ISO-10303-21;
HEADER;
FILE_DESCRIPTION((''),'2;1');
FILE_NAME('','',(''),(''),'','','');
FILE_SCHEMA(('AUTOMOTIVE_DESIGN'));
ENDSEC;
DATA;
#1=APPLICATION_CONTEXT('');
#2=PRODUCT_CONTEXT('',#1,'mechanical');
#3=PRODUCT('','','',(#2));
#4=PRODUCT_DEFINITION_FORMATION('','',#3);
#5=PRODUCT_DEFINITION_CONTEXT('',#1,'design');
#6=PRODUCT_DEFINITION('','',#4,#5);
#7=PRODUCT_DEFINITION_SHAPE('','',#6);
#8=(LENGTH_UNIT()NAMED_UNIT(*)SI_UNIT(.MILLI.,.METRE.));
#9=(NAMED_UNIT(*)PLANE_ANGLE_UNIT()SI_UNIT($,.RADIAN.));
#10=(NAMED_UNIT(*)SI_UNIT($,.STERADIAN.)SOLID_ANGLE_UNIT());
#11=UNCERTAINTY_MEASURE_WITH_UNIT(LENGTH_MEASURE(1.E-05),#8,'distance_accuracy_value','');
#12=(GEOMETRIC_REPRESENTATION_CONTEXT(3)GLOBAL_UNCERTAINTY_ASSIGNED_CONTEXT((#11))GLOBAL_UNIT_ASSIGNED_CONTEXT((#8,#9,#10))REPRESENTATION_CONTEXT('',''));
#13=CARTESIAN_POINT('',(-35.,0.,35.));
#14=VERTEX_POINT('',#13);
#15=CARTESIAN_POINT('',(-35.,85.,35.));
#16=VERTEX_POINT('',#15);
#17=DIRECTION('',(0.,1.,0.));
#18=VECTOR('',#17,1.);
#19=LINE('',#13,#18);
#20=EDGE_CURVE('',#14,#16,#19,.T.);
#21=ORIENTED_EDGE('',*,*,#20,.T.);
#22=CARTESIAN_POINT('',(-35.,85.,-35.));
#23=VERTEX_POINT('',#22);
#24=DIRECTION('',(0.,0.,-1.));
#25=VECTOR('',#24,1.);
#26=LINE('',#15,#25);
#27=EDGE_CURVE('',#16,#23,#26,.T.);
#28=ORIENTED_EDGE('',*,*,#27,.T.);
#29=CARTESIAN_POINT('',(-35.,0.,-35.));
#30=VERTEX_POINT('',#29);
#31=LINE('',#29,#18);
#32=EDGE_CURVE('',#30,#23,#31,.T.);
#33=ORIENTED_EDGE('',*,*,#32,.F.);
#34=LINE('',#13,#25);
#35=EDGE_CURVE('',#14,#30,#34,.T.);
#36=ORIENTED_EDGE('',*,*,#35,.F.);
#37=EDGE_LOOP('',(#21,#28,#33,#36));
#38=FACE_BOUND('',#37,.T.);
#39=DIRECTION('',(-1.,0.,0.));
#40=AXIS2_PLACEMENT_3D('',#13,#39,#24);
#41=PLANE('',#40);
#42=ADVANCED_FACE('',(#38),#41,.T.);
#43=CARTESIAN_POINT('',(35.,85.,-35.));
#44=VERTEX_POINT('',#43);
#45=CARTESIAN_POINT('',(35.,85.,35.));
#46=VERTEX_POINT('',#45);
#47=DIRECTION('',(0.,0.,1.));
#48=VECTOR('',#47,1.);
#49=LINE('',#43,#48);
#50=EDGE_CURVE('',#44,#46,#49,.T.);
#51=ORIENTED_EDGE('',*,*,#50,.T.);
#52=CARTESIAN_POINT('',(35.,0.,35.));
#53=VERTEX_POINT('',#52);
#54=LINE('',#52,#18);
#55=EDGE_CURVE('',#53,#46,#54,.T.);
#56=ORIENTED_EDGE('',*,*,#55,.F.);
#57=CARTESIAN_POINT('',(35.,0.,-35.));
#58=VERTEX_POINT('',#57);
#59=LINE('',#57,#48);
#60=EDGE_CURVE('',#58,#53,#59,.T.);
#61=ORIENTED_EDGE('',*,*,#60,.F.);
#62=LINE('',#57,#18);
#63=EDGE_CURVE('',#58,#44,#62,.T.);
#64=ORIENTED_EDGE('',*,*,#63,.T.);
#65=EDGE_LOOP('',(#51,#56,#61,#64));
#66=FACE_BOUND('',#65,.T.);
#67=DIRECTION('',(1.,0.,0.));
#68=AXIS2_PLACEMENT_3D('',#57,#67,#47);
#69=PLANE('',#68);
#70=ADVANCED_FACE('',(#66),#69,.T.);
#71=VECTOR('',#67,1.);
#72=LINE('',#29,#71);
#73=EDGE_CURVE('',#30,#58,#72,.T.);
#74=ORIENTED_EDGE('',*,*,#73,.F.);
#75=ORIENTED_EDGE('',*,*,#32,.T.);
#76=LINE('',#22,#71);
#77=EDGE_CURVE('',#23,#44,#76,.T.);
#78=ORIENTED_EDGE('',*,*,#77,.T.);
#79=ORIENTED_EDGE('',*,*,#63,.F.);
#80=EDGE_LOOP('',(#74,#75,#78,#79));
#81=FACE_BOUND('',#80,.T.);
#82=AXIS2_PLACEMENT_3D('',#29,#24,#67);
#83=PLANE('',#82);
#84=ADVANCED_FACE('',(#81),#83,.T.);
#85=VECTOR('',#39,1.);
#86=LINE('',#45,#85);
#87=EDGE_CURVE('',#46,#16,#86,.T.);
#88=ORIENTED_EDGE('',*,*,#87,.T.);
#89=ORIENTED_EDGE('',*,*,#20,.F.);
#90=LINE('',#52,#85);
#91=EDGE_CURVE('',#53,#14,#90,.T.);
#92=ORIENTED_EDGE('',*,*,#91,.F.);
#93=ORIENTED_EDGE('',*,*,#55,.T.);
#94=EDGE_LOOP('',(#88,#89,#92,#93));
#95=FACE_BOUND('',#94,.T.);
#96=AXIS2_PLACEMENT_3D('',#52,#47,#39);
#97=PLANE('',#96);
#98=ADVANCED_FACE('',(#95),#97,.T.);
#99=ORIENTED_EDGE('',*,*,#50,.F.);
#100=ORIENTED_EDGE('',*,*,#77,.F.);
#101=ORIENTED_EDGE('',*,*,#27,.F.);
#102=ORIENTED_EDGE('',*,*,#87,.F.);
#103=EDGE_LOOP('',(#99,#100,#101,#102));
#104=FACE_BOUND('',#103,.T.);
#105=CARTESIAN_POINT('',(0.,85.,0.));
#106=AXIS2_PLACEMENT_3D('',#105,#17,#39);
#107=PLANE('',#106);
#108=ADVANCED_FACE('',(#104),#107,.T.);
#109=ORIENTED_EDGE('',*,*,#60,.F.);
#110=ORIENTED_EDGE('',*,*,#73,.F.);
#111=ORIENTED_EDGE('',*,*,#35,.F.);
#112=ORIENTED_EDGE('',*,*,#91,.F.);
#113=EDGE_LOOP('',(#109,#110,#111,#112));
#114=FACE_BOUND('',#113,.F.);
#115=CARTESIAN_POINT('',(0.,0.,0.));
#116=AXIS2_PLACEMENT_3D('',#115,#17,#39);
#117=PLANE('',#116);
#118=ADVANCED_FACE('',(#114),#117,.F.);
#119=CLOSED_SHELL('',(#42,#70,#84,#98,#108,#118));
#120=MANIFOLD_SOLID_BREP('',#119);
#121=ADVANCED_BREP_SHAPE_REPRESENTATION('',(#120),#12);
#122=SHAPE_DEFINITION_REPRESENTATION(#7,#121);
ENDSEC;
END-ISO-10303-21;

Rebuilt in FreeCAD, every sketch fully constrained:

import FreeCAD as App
import Part
import Sketcher


def add_polygon(sketch, points):
    """Adds a closed chain of lines whose ends are joined by coincident constraints."""
    first, n = sketch.GeometryCount, len(points)
    for a, b in zip(points, points[1:] + points[:1]):
        sketch.addGeometry(Part.LineSegment(App.Vector(*a, 0), App.Vector(*b, 0)), False)
    for i in range(n):
        sketch.addConstraint(Sketcher.Constraint("Coincident", first + i, 2, first + (i + 1) % n, 1))

doc = App.newDocument("Part")
params = doc.addObject("Spreadsheet::Sheet", "Params")
for row, (alias, value) in enumerate([
    ("sketch1_width", "70 mm"),
    ("pad1_length", "85 mm"),
], start=1):
    params.set(f"A{row}", alias)
    params.set(f"B{row}", "=" + value)
    params.setAlias(f"B{row}", alias)

body = doc.addObject("PartDesign::Body", "Body")

sketch1 = doc.addObject("Sketcher::SketchObject", "Sketch")
body.addObject(sketch1)
sketch1.AttachmentSupport = (doc.XZ_Plane, [""])
sketch1.MapMode = "FlatFace"
add_polygon(sketch1, [(-35, 35), (35, 35), (35, -35), (-35, -35)])
sketch1.addConstraint([
    Sketcher.Constraint("Horizontal", 0),
    Sketcher.Constraint("Vertical", 1),
    Sketcher.Constraint("Horizontal", 2),
    Sketcher.Constraint("Vertical", 3),
    Sketcher.Constraint("Symmetric", 0, 2, 2, 2, -1, 1),
    Sketcher.Constraint("Equal", 2, 1),
    Sketcher.Constraint("DistanceX", 0, 1, 0, 2, 70.0),
])
sketch1.setExpression("Constraints[10]", "Params.sketch1_width")
pad1 = doc.addObject("PartDesign::Pad", "Pad")
body.addObject(pad1)
pad1.Profile = sketch1
pad1.setExpression("Length", "Params.pad1_length")
pad1.Reversed = True

doc.recompute()
